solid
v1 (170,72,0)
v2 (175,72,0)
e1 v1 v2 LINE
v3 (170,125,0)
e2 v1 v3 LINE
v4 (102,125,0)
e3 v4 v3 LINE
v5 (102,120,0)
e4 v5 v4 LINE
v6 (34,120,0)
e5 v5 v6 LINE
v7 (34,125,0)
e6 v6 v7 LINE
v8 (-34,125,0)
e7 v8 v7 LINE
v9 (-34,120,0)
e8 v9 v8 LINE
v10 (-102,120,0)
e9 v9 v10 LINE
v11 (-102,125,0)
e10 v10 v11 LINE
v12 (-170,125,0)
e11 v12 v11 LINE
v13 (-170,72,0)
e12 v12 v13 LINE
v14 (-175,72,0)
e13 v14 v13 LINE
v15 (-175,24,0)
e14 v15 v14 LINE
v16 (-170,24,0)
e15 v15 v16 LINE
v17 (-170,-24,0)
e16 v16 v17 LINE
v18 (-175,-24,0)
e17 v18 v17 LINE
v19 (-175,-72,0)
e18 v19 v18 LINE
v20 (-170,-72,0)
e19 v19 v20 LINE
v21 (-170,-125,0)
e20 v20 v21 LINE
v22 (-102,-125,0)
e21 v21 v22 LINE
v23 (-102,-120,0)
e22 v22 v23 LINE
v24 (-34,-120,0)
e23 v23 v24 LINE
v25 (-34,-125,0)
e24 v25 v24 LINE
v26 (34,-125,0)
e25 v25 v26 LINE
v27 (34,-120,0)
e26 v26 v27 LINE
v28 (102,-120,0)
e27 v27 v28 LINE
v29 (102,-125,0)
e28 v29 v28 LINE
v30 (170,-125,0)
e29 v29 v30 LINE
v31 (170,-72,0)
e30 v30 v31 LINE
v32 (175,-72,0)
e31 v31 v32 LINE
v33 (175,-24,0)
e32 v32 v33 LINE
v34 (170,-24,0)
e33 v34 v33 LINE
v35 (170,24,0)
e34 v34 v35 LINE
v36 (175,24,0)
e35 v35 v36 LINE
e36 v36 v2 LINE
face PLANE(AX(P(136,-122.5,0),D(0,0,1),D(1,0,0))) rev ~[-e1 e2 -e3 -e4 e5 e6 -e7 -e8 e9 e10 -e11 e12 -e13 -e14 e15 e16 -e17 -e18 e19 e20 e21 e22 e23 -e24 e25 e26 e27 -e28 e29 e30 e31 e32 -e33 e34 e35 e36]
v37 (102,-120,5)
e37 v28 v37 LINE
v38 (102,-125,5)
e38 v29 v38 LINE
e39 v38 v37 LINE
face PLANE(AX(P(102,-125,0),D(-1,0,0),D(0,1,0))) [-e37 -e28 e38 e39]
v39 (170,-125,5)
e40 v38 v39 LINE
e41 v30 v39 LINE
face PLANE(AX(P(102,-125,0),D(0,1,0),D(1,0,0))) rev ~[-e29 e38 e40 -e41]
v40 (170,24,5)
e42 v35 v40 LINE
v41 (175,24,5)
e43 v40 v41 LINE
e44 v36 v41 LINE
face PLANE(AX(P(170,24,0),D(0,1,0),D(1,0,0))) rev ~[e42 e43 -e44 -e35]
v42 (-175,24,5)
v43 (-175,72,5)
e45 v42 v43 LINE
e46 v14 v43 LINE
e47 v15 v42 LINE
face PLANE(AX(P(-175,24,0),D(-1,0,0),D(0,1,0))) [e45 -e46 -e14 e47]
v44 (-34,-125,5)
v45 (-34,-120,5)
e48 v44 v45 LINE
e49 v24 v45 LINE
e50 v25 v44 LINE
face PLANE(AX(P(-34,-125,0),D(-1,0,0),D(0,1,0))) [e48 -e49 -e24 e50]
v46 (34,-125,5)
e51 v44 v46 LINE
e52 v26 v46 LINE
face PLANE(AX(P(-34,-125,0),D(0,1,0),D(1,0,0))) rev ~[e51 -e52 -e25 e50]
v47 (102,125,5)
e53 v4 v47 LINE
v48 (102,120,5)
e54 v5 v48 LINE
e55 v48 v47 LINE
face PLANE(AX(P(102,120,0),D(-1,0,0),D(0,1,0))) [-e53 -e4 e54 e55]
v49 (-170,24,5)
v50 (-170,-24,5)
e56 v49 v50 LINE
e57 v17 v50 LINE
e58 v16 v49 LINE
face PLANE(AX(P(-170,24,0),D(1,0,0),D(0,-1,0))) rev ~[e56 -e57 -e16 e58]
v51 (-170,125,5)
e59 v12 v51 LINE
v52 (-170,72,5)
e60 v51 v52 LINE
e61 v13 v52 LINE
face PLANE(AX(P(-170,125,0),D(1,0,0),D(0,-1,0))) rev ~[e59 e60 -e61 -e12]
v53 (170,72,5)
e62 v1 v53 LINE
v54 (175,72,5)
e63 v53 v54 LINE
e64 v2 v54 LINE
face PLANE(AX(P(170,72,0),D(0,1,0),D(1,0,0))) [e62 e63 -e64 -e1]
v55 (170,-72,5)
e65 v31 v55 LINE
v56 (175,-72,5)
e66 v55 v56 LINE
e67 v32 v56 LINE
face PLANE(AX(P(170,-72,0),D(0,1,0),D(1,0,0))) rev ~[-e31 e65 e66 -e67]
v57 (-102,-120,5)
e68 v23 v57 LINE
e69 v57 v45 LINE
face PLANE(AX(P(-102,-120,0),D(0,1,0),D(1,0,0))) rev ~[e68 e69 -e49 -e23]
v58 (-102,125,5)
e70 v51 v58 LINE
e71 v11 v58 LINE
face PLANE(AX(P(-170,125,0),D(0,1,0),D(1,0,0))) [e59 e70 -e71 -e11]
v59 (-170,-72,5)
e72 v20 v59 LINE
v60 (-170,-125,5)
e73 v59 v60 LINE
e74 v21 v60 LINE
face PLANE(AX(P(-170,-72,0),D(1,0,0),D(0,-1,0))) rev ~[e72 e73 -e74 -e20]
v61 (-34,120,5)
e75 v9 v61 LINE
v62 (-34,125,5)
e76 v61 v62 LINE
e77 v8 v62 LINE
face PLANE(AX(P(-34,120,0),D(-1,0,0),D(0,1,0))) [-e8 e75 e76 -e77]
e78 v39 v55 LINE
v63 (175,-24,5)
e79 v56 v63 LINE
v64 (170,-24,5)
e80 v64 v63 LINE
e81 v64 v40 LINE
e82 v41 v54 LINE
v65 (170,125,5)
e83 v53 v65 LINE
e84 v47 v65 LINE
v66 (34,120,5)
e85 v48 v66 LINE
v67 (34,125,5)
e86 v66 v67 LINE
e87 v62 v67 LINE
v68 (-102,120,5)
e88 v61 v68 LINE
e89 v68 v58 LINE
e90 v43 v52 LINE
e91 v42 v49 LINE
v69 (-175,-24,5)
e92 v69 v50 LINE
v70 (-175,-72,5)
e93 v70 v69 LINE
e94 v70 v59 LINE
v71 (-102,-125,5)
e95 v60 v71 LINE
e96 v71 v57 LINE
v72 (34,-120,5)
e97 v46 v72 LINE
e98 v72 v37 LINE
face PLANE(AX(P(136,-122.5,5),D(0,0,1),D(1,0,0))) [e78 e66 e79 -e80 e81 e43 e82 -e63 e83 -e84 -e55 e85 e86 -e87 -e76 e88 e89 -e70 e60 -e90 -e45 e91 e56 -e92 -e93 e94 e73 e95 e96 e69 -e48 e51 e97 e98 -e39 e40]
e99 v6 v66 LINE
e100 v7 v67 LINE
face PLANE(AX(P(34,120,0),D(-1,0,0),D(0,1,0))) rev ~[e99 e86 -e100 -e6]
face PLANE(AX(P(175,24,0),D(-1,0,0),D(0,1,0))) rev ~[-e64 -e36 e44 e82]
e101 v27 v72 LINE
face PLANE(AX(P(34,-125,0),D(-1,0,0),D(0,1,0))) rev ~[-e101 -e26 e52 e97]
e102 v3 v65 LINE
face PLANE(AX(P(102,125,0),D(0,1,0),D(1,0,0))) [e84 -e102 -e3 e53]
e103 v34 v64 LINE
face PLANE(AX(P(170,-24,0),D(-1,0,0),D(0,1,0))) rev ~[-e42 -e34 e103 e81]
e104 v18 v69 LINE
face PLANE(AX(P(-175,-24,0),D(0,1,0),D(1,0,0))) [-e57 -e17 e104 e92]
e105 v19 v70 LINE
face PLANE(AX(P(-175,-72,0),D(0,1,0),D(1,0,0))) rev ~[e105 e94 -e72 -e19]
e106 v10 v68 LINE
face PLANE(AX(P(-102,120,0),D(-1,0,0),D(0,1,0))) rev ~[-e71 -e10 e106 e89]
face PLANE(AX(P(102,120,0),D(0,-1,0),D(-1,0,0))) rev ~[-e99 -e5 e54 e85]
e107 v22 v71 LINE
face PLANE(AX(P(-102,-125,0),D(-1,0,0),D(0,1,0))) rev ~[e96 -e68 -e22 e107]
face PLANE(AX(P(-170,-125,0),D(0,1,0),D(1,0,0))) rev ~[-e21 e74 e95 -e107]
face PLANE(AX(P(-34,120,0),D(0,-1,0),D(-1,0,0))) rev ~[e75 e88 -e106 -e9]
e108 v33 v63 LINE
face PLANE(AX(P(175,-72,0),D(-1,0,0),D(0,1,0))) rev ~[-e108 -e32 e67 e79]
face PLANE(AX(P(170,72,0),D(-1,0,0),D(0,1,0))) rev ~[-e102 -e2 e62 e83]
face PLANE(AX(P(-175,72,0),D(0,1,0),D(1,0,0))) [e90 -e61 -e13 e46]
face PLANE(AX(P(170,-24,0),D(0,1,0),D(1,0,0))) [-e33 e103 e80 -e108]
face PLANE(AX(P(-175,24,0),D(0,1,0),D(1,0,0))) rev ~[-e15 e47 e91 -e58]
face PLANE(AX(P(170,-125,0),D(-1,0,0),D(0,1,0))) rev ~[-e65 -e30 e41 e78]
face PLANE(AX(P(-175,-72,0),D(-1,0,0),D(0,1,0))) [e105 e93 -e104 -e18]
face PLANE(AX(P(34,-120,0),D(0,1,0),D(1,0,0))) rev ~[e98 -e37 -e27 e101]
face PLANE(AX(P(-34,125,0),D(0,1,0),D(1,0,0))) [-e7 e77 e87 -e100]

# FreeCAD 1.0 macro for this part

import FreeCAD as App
import Part
import Sketcher

doc = App.newDocument("Part")
params = doc.addObject("Spreadsheet::Sheet", "Params")
for row, (alias, value) in enumerate([
    ("sketch1_width", "68 mm"),
    ("sketch1_width2", "5 mm"),
    ("sketch1_height", "53 mm"),
    ("sketch1_height2", "48 mm"),
    ("pad1_length", "5 mm"),
], start=1):
    params.set(f"A{row}", alias)
    params.set(f"B{row}", "=" + value)
    params.setAlias(f"B{row}", alias)

body = doc.addObject("PartDesign::Body", "Body")

sketch1 = doc.addObject("Sketcher::SketchObject", "Sketch")
body.addObject(sketch1)
sketch1.AttachmentSupport = (doc.XY_Plane, [""])
sketch1.MapMode = "FlatFace"
sketch1.addGeometry(Part.LineSegment(App.Vector(102, -120, 0), App.Vector(102, -125, 0)), False)
sketch1.addGeometry(Part.LineSegment(App.Vector(102, -125, 0), App.Vector(170, -125, 0)), False)
sketch1.addGeometry(Part.LineSegment(App.Vector(170, -125, 0), App.Vector(170, -72, 0)), False)
sketch1.addGeometry(Part.LineSegment(App.Vector(170, -72, 0), App.Vector(175, -72, 0)), False)
sketch1.addGeometry(Part.LineSegment(App.Vector(175, -72, 0), App.Vector(175, -24, 0)), False)
sketch1.addGeometry(Part.LineSegment(App.Vector(175, -24, 0), App.Vector(170, -24, 0)), False)
sketch1.addGeometry(Part.LineSegment(App.Vector(170, -24, 0), App.Vector(170, 24, 0)), False)
sketch1.addGeometry(Part.LineSegment(App.Vector(170, 24, 0), App.Vector(175, 24, 0)), False)
sketch1.addGeometry(Part.LineSegment(App.Vector(175, 24, 0), App.Vector(175, 72, 0)), False)
sketch1.addGeometry(Part.LineSegment(App.Vector(175, 72, 0), App.Vector(170, 72, 0)), False)
sketch1.addGeometry(Part.LineSegment(App.Vector(170, 72, 0), App.Vector(170, 125, 0)), False)
sketch1.addGeometry(Part.LineSegment(App.Vector(170, 125, 0), App.Vector(102, 125, 0)), False)
sketch1.addGeometry(Part.LineSegment(App.Vector(102, 125, 0), App.Vector(102, 120, 0)), False)
sketch1.addGeometry(Part.LineSegment(App.Vector(102, 120, 0), App.Vector(34, 120, 0)), False)
sketch1.addGeometry(Part.LineSegment(App.Vector(34, 120, 0), App.Vector(34, 125, 0)), False)
sketch1.addGeometry(Part.LineSegment(App.Vector(34, 125, 0), App.Vector(-34, 125, 0)), False)
sketch1.addGeometry(Part.LineSegment(App.Vector(-34, 125, 0), App.Vector(-34, 120, 0)), False)
sketch1.addGeometry(Part.LineSegment(App.Vector(-34, 120, 0), App.Vector(-102, 120, 0)), False)
sketch1.addGeometry(Part.LineSegment(App.Vector(-102, 120, 0), App.Vector(-102, 125, 0)), False)
sketch1.addGeometry(Part.LineSegment(App.Vector(-102, 125, 0), App.Vector(-170, 125, 0)), False)
sketch1.addGeometry(Part.LineSegment(App.Vector(-170, 125, 0), App.Vector(-170, 72, 0)), False)
sketch1.addGeometry(Part.LineSegment(App.Vector(-170, 72, 0), App.Vector(-175, 72, 0)), False)
sketch1.addGeometry(Part.LineSegment(App.Vector(-175, 72, 0), App.Vector(-175, 24, 0)), False)
sketch1.addGeometry(Part.LineSegment(App.Vector(-175, 24, 0), App.Vector(-170, 24, 0)), False)
sketch1.addGeometry(Part.LineSegment(App.Vector(-170, 24, 0), App.Vector(-170, -24, 0)), False)
sketch1.addGeometry(Part.LineSegment(App.Vector(-170, -24, 0), App.Vector(-175, -24, 0)), False)
sketch1.addGeometry(Part.LineSegment(App.Vector(-175, -24, 0), App.Vector(-175, -72, 0)), False)
sketch1.addGeometry(Part.LineSegment(App.Vector(-175, -72, 0), App.Vector(-170, -72, 0)), False)
sketch1.addGeometry(Part.LineSegment(App.Vector(-170, -72, 0), App.Vector(-170, -125, 0)), False)
sketch1.addGeometry(Part.LineSegment(App.Vector(-170, -125, 0), App.Vector(-102, -125, 0)), False)
sketch1.addGeometry(Part.LineSegment(App.Vector(-102, -125, 0), App.Vector(-102, -120, 0)), False)
sketch1.addGeometry(Part.LineSegment(App.Vector(-102, -120, 0), App.Vector(-34, -120, 0)), False)
sketch1.addGeometry(Part.LineSegment(App.Vector(-34, -120, 0), App.Vector(-34, -125, 0)), False)
sketch1.addGeometry(Part.LineSegment(App.Vector(-34, -125, 0), App.Vector(34, -125, 0)), False)
sketch1.addGeometry(Part.LineSegment(App.Vector(34, -125, 0), App.Vector(34, -120, 0)), False)
sketch1.addGeometry(Part.LineSegment(App.Vector(34, -120, 0), App.Vector(102, -120, 0)), False)
sketch1.addConstraint(Sketcher.Constraint("Coincident", 0, 2, 1, 1))
sketch1.addConstraint(Sketcher.Constraint("Coincident", 1, 2, 2, 1))
sketch1.addConstraint(Sketcher.Constraint("Coincident", 2, 2, 3, 1))
sketch1.addConstraint(Sketcher.Constraint("Coincident", 3, 2, 4, 1))
sketch1.addConstraint(Sketcher.Constraint("Coincident", 4, 2, 5, 1))
sketch1.addConstraint(Sketcher.Constraint("Coincident", 5, 2, 6, 1))
sketch1.addConstraint(Sketcher.Constraint("Coincident", 6, 2, 7, 1))
sketch1.addConstraint(Sketcher.Constraint("Coincident", 7, 2, 8, 1))
sketch1.addConstraint(Sketcher.Constraint("Coincident", 8, 2, 9, 1))
sketch1.addConstraint(Sketcher.Constraint("Coincident", 9, 2, 10, 1))
sketch1.addConstraint(Sketcher.Constraint("Coincident", 10, 2, 11, 1))
sketch1.addConstraint(Sketcher.Constraint("Coincident", 11, 2, 12, 1))
sketch1.addConstraint(Sketcher.Constraint("Coincident", 12, 2, 13, 1))
sketch1.addConstraint(Sketcher.Constraint("Coincident", 13, 2, 14, 1))
sketch1.addConstraint(Sketcher.Constraint("Coincident", 14, 2, 15, 1))
sketch1.addConstraint(Sketcher.Constraint("Coincident", 15, 2, 16, 1))
sketch1.addConstraint(Sketcher.Constraint("Coincident", 16, 2, 17, 1))
sketch1.addConstraint(Sketcher.Constraint("Coincident", 17, 2, 18, 1))
sketch1.addConstraint(Sketcher.Constraint("Coincident", 18, 2, 19, 1))
sketch1.addConstraint(Sketcher.Constraint("Coincident", 19, 2, 20, 1))
sketch1.addConstraint(Sketcher.Constraint("Coincident", 20, 2, 21, 1))
sketch1.addConstraint(Sketcher.Constraint("Coincident", 21, 2, 22, 1))
sketch1.addConstraint(Sketcher.Constraint("Coincident", 22, 2, 23, 1))
sketch1.addConstraint(Sketcher.Constraint("Coincident", 23, 2, 24, 1))
sketch1.addConstraint(Sketcher.Constraint("Coincident", 24, 2, 25, 1))
sketch1.addConstraint(Sketcher.Constraint("Coincident", 25, 2, 26, 1))
sketch1.addConstraint(Sketcher.Constraint("Coincident", 26, 2, 27, 1))
sketch1.addConstraint(Sketcher.Constraint("Coincident", 27, 2, 28, 1))
sketch1.addConstraint(Sketcher.Constraint("Coincident", 28, 2, 29, 1))
sketch1.addConstraint(Sketcher.Constraint("Coincident", 29, 2, 30, 1))
sketch1.addConstraint(Sketcher.Constraint("Coincident", 30, 2, 31, 1))
sketch1.addConstraint(Sketcher.Constraint("Coincident", 31, 2, 32, 1))
sketch1.addConstraint(Sketcher.Constraint("Coincident", 32, 2, 33, 1))
sketch1.addConstraint(Sketcher.Constraint("Coincident", 33, 2, 34, 1))
sketch1.addConstraint(Sketcher.Constraint("Coincident", 34, 2, 35, 1))
sketch1.addConstraint(Sketcher.Constraint("Coincident", 35, 2, 0, 1))
sketch1.addConstraint(Sketcher.Constraint("Vertical", 0))
sketch1.addConstraint(Sketcher.Constraint("Horizontal", 1))
sketch1.addConstraint(Sketcher.Constraint("Vertical", 2))
sketch1.addConstraint(Sketcher.Constraint("Horizontal", 3))
sketch1.addConstraint(Sketcher.Constraint("Vertical", 4))
sketch1.addConstraint(Sketcher.Constraint("Horizontal", 5))
sketch1.addConstraint(Sketcher.Constraint("Vertical", 6))
sketch1.addConstraint(Sketcher.Constraint("Horizontal", 7))
sketch1.addConstraint(Sketcher.Constraint("Vertical", 8))
sketch1.addConstraint(Sketcher.Constraint("Horizontal", 9))
sketch1.addConstraint(Sketcher.Constraint("Vertical", 10))
sketch1.addConstraint(Sketcher.Constraint("Horizontal", 11))
sketch1.addConstraint(Sketcher.Constraint("Vertical", 12))
sketch1.addConstraint(Sketcher.Constraint("Horizontal", 13))
sketch1.addConstraint(Sketcher.Constraint("Vertical", 14))
sketch1.addConstraint(Sketcher.Constraint("Horizontal", 15))
sketch1.addConstraint(Sketcher.Constraint("Vertical", 16))
sketch1.addConstraint(Sketcher.Constraint("Horizontal", 17))
sketch1.addConstraint(Sketcher.Constraint("Vertical", 18))
sketch1.addConstraint(Sketcher.Constraint("Horizontal", 19))
sketch1.addConstraint(Sketcher.Constraint("Vertical", 20))
sketch1.addConstraint(Sketcher.Constraint("Horizontal", 21))
sketch1.addConstraint(Sketcher.Constraint("Vertical", 22))
sketch1.addConstraint(Sketcher.Constraint("Horizontal", 23))
sketch1.addConstraint(Sketcher.Constraint("Vertical", 24))
sketch1.addConstraint(Sketcher.Constraint("Horizontal", 25))
sketch1.addConstraint(Sketcher.Constraint("Vertical", 26))
sketch1.addConstraint(Sketcher.Constraint("Horizontal", 27))
sketch1.addConstraint(Sketcher.Constraint("Vertical", 28))
sketch1.addConstraint(Sketcher.Constraint("Horizontal", 29))
sketch1.addConstraint(Sketcher.Constraint("Vertical", 30))
sketch1.addConstraint(Sketcher.Constraint("Horizontal", 31))
sketch1.addConstraint(Sketcher.Constraint("Vertical", 32))
sketch1.addConstraint(Sketcher.Constraint("Horizontal", 33))
sketch1.addConstraint(Sketcher.Constraint("Vertical", 34))
sketch1.addConstraint(Sketcher.Constraint("Horizontal", 35))
sketch1.addConstraint(Sketcher.Constraint("Symmetric", 0, 2, 18, 2, -1, 1))
sketch1.addConstraint(Sketcher.Constraint("Symmetric", 2, 2, 20, 2, -1, 1))
sketch1.addConstraint(Sketcher.Constraint("Symmetric", 4, 2, 22, 2, -1, 1))
sketch1.addConstraint(Sketcher.Constraint("Symmetric", 6, 2, 24, 2, -1, 1))
sketch1.addConstraint(Sketcher.Constraint("Symmetric", 8, 2, 26, 2, -1, 1))
sketch1.addConstraint(Sketcher.Constraint("Symmetric", 10, 2, 28, 2, -1, 1))
sketch1.addConstraint(Sketcher.Constraint("Symmetric", 12, 2, 30, 2, -1, 1))
sketch1.addConstraint(Sketcher.Constraint("Symmetric", 14, 2, 32, 2, -1, 1))
sketch1.addConstraint(Sketcher.Constraint("Symmetric", 16, 2, 34, 2, -1, 1))
sketch1.addConstraint(Sketcher.Constraint("Symmetric", 13, 2, 16, 2, -2))
sketch1.addConstraint(Sketcher.Constraint("Symmetric", 11, 2, 18, 2, -2))
sketch1.addConstraint(Sketcher.Constraint("Symmetric", 9, 2, 20, 2, -2))
sketch1.addConstraint(Sketcher.Constraint("Symmetric", 7, 2, 22, 2, -2))
sketch1.addConstraint(Sketcher.Constraint("Horizontal", 11, 2, 14, 2))
sketch1.addConstraint(Sketcher.Constraint("Vertical", 2, 2, 5, 2))
sketch1.addConstraint(Sketcher.Constraint("Equal", 11, 13))
sketch1.addConstraint(Sketcher.Constraint("Equal", 13, 15))
sketch1.addConstraint(Sketcher.Constraint("Equal", 27, 0))
sketch1.addConstraint(Sketcher.Constraint("Equal", 4, 6))
sketch1.addConstraint(Sketcher.Constraint("DistanceX", 1, 1, 1, 2, 68.0))
sketch1.addConstraint(Sketcher.Constraint("DistanceX", 3, 1, 3, 2, 5.0))
sketch1.addConstraint(Sketcher.Constraint("DistanceY", 2, 1, 2, 2, 53.0))
sketch1.addConstraint(Sketcher.Constraint("DistanceY", 4, 1, 4, 2, 48.0))
sketch1.setExpression("Constraints[91]", "Params.sketch1_width")
sketch1.setExpression("Constraints[92]", "Params.sketch1_width2")
sketch1.setExpression("Constraints[93]", "Params.sketch1_height")
sketch1.setExpression("Constraints[94]", "Params.sketch1_height2")
pad1 = doc.addObject("PartDesign::Pad", "Pad")
body.addObject(pad1)
pad1.Profile = sketch1
pad1.setExpression("Length", "Params.pad1_length")

doc.recompute()
